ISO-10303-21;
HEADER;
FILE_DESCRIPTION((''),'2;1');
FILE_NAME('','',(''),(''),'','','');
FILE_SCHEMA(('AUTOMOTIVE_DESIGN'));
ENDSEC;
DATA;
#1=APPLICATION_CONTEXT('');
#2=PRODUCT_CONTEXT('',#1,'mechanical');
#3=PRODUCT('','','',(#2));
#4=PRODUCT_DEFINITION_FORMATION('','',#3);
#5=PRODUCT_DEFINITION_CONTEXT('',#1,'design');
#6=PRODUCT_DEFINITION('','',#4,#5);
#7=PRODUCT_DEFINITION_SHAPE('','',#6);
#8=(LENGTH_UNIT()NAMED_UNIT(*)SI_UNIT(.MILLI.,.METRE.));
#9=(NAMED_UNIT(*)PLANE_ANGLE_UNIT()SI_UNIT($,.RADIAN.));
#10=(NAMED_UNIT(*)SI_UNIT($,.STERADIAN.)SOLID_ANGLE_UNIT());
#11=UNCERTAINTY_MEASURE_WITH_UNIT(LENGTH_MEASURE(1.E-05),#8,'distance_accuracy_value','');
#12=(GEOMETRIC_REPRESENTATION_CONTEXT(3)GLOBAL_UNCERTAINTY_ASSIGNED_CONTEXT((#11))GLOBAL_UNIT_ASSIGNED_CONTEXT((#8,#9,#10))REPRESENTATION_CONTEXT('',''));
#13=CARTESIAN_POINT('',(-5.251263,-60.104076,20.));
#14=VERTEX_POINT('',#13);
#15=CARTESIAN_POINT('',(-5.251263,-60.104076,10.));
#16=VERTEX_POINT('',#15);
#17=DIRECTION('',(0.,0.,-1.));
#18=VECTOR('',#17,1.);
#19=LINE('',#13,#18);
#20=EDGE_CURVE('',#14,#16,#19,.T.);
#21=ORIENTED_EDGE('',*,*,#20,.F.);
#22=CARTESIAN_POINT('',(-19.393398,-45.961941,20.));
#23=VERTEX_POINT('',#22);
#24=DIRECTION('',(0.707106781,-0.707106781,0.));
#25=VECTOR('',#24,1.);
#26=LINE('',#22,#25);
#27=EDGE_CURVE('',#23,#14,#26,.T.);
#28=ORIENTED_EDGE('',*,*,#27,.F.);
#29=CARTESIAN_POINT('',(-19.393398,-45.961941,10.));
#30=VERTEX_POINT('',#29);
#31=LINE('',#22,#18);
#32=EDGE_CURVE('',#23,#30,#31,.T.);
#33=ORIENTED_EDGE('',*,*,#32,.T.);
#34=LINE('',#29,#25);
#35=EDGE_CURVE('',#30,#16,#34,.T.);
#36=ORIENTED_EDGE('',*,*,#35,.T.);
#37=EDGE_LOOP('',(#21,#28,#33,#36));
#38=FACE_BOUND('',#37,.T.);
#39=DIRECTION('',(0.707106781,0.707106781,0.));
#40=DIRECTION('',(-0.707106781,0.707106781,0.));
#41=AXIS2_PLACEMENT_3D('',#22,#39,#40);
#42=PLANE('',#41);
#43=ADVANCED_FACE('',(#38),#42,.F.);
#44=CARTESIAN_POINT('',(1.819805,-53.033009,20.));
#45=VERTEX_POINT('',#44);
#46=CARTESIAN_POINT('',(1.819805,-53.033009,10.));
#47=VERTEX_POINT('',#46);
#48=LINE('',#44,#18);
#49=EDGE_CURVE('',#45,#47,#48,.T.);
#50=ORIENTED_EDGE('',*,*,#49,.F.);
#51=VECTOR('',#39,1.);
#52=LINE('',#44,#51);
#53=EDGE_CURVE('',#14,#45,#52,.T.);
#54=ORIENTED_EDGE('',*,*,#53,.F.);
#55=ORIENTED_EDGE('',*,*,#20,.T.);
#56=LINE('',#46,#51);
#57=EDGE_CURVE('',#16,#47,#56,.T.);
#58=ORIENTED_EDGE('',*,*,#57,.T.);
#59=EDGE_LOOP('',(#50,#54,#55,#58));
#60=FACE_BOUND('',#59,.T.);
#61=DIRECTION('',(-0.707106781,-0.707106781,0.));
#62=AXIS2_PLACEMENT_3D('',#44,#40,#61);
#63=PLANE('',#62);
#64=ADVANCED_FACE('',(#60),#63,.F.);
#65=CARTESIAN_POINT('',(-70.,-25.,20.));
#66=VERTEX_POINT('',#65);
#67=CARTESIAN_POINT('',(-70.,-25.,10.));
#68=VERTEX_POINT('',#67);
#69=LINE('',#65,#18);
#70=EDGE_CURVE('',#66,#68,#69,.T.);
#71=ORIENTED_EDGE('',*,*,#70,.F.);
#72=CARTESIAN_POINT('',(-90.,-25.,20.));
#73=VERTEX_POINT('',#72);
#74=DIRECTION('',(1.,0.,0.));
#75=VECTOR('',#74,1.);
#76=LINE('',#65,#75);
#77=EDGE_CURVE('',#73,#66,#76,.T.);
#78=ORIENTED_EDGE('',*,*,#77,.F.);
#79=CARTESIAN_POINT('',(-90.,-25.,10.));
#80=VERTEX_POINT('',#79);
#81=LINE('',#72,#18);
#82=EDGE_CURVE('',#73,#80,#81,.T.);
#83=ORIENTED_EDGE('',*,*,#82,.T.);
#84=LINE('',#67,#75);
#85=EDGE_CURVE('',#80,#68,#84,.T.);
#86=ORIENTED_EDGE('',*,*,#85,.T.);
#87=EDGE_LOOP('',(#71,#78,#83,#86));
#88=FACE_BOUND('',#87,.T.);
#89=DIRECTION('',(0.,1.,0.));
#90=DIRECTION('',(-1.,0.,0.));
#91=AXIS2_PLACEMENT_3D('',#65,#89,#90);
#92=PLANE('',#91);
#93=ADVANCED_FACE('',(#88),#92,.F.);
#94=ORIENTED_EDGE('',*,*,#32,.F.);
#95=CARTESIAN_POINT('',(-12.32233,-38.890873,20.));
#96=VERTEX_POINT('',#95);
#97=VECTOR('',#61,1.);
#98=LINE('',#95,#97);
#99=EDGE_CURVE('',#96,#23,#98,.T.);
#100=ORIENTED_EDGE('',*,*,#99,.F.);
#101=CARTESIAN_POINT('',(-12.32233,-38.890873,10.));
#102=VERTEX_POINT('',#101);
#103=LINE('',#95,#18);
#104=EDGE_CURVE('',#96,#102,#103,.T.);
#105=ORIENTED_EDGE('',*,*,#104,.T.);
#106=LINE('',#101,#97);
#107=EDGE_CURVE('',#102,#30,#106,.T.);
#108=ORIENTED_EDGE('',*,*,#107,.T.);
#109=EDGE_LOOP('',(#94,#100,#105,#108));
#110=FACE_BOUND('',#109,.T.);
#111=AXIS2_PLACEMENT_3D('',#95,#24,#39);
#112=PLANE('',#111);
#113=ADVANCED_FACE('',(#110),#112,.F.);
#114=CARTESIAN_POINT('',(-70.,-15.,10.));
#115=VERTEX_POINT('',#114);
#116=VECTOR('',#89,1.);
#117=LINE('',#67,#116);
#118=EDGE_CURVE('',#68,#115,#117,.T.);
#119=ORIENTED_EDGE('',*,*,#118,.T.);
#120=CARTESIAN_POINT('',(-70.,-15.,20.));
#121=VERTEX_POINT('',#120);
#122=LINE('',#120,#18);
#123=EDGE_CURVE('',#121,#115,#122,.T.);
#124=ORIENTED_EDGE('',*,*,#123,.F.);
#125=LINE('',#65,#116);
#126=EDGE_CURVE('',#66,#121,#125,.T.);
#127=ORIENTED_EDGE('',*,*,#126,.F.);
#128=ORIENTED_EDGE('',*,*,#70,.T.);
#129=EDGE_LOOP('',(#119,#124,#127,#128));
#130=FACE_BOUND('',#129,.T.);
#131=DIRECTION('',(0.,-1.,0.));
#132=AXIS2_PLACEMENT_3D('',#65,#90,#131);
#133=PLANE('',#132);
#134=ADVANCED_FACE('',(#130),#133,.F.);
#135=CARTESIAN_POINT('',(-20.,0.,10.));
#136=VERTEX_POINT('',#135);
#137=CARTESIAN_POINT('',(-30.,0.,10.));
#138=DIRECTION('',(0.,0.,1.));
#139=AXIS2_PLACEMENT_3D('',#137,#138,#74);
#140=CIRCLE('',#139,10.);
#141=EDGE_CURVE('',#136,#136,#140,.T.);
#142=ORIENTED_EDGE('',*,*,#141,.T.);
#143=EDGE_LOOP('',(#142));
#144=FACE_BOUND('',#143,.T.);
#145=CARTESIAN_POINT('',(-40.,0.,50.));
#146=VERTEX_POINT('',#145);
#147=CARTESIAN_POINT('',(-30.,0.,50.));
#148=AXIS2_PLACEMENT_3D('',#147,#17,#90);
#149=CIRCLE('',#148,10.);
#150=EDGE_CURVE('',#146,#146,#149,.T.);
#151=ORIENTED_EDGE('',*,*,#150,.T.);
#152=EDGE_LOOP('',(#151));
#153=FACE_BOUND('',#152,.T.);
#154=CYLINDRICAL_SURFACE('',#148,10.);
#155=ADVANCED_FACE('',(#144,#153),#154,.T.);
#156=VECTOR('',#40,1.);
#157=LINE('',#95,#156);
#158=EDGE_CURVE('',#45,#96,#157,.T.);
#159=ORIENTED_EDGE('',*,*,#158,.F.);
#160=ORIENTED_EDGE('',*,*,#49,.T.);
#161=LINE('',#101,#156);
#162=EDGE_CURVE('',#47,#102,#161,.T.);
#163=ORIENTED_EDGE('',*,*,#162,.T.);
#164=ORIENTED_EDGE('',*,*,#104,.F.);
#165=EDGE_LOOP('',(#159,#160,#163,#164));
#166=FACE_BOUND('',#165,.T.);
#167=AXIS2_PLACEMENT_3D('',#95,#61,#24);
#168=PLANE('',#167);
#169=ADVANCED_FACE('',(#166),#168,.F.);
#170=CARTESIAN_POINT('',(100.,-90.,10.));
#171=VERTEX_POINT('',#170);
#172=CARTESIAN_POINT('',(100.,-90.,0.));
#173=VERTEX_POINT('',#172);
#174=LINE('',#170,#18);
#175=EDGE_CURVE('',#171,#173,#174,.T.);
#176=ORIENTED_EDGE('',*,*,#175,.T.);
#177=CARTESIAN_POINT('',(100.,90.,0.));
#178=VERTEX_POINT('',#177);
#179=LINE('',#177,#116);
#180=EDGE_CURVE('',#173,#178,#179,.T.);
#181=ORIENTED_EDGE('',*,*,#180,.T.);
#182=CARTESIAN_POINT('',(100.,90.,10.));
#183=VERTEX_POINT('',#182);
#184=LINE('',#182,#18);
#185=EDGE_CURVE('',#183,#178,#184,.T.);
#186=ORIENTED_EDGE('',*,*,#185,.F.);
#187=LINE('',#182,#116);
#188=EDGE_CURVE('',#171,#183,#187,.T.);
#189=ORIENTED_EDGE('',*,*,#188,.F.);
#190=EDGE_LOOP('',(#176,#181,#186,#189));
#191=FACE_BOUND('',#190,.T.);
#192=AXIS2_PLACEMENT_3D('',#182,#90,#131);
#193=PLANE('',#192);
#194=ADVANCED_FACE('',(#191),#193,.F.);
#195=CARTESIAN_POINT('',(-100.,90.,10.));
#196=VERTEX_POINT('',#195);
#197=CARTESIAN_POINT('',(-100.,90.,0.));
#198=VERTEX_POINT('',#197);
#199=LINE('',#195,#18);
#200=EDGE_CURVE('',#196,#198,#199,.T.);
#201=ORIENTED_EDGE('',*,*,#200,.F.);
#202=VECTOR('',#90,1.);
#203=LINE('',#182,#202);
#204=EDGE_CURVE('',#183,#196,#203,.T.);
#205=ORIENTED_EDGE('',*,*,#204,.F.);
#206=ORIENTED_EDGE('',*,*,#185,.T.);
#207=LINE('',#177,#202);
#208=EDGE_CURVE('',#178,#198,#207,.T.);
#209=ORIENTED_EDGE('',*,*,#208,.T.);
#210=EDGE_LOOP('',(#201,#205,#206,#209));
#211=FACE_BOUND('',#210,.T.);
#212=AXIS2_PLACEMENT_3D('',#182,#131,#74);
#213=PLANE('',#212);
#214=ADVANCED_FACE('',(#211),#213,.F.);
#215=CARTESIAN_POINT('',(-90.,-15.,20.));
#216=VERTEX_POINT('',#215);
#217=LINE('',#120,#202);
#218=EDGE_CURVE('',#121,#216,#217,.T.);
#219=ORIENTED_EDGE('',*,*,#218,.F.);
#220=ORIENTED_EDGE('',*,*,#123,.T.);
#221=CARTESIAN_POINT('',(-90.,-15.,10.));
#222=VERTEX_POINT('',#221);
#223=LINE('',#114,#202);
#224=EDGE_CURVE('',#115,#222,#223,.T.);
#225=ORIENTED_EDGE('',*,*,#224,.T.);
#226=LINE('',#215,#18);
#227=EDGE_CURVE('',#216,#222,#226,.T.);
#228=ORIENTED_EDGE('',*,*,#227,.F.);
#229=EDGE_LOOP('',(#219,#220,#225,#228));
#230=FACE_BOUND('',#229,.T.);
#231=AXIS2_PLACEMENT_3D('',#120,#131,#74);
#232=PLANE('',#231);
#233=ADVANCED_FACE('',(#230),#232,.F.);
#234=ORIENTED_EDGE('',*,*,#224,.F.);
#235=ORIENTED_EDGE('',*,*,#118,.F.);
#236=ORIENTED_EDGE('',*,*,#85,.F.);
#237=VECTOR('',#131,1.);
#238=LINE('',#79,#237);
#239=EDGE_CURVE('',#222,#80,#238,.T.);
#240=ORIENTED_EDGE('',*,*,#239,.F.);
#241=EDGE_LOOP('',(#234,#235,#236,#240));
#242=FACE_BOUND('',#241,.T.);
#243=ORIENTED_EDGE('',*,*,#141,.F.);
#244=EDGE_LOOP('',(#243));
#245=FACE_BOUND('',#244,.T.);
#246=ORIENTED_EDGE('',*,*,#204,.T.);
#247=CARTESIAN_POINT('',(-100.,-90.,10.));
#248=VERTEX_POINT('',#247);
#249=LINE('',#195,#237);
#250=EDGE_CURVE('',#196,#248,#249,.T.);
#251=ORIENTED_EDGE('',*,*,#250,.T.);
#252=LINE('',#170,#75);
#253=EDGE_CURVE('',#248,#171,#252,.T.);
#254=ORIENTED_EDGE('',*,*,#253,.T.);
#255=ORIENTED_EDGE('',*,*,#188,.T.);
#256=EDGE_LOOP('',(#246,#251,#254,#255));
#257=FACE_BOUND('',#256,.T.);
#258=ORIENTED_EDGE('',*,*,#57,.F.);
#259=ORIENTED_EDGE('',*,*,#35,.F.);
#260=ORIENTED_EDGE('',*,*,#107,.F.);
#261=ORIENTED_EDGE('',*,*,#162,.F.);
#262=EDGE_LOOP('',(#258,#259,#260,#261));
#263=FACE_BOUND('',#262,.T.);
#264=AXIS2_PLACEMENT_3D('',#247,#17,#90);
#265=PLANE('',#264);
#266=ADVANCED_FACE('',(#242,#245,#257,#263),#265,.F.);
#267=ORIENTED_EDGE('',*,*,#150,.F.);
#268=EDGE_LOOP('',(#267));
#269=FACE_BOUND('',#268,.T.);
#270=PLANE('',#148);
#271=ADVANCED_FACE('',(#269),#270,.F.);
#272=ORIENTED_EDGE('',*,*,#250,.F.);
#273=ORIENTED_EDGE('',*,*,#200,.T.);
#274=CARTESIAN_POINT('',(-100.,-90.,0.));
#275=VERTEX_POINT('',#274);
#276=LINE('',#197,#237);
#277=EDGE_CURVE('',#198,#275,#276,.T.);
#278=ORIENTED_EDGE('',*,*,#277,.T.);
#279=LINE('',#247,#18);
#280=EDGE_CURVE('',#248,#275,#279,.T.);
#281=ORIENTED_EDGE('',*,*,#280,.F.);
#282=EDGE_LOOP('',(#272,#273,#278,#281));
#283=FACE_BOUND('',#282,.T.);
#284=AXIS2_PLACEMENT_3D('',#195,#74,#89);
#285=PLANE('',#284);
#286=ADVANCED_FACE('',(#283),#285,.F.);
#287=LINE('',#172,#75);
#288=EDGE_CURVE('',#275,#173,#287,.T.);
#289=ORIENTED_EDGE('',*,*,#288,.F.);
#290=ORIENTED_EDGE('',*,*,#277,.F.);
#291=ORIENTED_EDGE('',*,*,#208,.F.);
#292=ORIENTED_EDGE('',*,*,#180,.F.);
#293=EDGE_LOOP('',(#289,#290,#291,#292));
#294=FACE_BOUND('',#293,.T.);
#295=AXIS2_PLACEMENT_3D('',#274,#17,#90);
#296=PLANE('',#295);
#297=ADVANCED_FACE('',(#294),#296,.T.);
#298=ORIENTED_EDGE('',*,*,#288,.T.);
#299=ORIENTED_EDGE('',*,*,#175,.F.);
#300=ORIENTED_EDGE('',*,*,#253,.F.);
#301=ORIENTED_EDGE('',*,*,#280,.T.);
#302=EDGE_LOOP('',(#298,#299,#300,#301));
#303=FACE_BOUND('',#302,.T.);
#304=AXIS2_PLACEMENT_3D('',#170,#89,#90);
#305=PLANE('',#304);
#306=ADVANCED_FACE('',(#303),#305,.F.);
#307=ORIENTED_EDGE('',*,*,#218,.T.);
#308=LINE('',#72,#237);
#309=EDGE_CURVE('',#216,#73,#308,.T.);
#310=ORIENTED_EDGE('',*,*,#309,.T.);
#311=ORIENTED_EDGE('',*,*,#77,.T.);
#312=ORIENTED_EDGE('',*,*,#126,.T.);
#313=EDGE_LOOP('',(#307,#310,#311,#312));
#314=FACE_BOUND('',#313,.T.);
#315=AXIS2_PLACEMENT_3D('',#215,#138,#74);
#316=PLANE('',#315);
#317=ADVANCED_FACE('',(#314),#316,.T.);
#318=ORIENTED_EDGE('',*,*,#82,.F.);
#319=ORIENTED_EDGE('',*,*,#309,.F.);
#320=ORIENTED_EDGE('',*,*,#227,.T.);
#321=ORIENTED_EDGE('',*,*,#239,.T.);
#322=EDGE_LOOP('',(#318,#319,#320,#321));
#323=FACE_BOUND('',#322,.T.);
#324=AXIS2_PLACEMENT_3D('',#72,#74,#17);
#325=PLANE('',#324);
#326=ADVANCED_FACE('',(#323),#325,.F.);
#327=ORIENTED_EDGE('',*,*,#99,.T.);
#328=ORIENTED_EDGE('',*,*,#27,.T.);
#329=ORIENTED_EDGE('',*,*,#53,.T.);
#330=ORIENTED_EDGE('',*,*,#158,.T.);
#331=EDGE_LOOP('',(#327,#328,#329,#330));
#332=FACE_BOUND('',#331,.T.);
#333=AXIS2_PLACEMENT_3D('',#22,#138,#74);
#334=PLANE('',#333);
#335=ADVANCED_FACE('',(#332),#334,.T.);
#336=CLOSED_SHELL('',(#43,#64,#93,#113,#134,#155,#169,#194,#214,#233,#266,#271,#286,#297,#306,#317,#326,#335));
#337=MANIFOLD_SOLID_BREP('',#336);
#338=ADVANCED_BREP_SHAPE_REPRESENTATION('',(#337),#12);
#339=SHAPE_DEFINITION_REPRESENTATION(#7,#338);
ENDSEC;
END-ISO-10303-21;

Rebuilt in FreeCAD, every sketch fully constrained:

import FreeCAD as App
import Part
import Sketcher

V = App.Vector
Q = App.Units.Quantity

doc = App.newDocument("Part")
body = doc.addObject("PartDesign::Body", "Body")

sketch1 = doc.addObject("Sketcher::SketchObject", "Sketch")
body.addObject(sketch1)
sketch1.AttachmentSupport = (doc.XY_Plane, [""])
sketch1.MapMode = "FlatFace"
sketch1.addGeometry([
    Part.LineSegment(V(-100, 90, 0), V(-100, -90, 0)),
    Part.LineSegment(V(-100, -90, 0), V(100, -90, 0)),
    Part.LineSegment(V(100, -90, 0), V(100, 90, 0)),
    Part.LineSegment(V(100, 90, 0), V(-100, 90, 0)),
    Part.Circle(V(-30, 0, 0), V(0, 0, 1), 10),
], False)
sketch1.addConstraint([
    Sketcher.Constraint("Coincident", 0, 2, 1, 1),
    Sketcher.Constraint("Coincident", 1, 2, 2, 1),
    Sketcher.Constraint("Coincident", 2, 2, 3, 1),
    Sketcher.Constraint("Coincident", 3, 2, 0, 1),
    Sketcher.Constraint("Vertical", 0),
    Sketcher.Constraint("Horizontal", 1),
    Sketcher.Constraint("Vertical", 2),
    Sketcher.Constraint("Horizontal", 3),
    Sketcher.Constraint("Symmetric", 0, 2, 2, 2, -1, 1),
    Sketcher.Constraint("PointOnObject", 4, 3, -1),
    Sketcher.Constraint("Diameter", 4, Q("20 mm")),
    Sketcher.Constraint("DistanceX", 1, 1, 1, 2, Q("200 mm")),
    Sketcher.Constraint("DistanceY", 0, 2, 0, 1, Q("180 mm")),
    Sketcher.Constraint("DistanceX", 4, 3, -1, 1, Q("30 mm")),
])
pad1 = doc.addObject("PartDesign::Pad", "Pad")
body.addObject(pad1)
pad1.Profile = sketch1
pad1.Length = 10

sketch2 = doc.addObject("Sketcher::SketchObject", "Sketch001")
body.addObject(sketch2)
sketch2.AttachmentSupport = (doc.XY_Plane, [""])
sketch2.MapMode = "FlatFace"
sketch2.addGeometry(Part.Circle(V(-30, 0, 0), V(0, 0, 1), 10), False)
sketch2.addConstraint([
    Sketcher.Constraint("PointOnObject", 0, 3, -1),
    Sketcher.Constraint("Diameter", 0, Q("20 mm")),
    Sketcher.Constraint("DistanceX", 0, 3, -1, 1, Q("30 mm")),
])
pad2 = doc.addObject("PartDesign::Pad", "Pad001")
body.addObject(pad2)
pad2.Profile = sketch2
pad2.Length = 50

sketch3 = doc.addObject("Sketcher::SketchObject", "Sketch002")
body.addObject(sketch3)
sketch3.AttachmentSupport = (doc.XY_Plane, [""])
sketch3.MapMode = "FlatFace"
sketch3.AttachmentOffset = App.Placement(V(0, 0, 10), App.Rotation())
sketch3.addGeometry([
    Part.LineSegment(V(-90, -15, 0), V(-90, -25, 0)),
    Part.LineSegment(V(-90, -25, 0), V(-70, -25, 0)),
    Part.LineSegment(V(-70, -25, 0), V(-70, -15, 0)),
    Part.LineSegment(V(-70, -15, 0), V(-90, -15, 0)),
    Part.LineSegment(V(1.819805, -53.033009, 0), V(-12.32233, -38.890873, 0)),
    Part.LineSegment(V(-12.32233, -38.890873, 0), V(-19.393398, -45.961941, 0)),
    Part.LineSegment(V(-19.393398, -45.961941, 0), V(-5.251263, -60.104076, 0)),
    Part.LineSegment(V(-5.251263, -60.104076, 0), V(1.819805, -53.033009, 0)),
], False)
sketch3.addConstraint([
    Sketcher.Constraint("Coincident", 0, 2, 1, 1),
    Sketcher.Constraint("Coincident", 1, 2, 2, 1),
    Sketcher.Constraint("Coincident", 2, 2, 3, 1),
    Sketcher.Constraint("Coincident", 3, 2, 0, 1),
    Sketcher.Constraint("Coincident", 4, 2, 5, 1),
    Sketcher.Constraint("Coincident", 5, 2, 6, 1),
    Sketcher.Constraint("Coincident", 6, 2, 7, 1),
    Sketcher.Constraint("Coincident", 7, 2, 4, 1),
    Sketcher.Constraint("Vertical", 0),
    Sketcher.Constraint("Horizontal", 1),
    Sketcher.Constraint("Vertical", 2),
    Sketcher.Constraint("Horizontal", 3),
    Sketcher.Constraint("Perpendicular", 4, 5),
    Sketcher.Constraint("Perpendicular", 5, 6),
    Sketcher.Constraint("Perpendicular", 6, 7),
    Sketcher.Constraint("DistanceX", 1, 1, 1, 2, Q("20 mm")),
    Sketcher.Constraint("DistanceY", 0, 2, 0, 1, Q("10 mm")),
    Sketcher.Constraint("Angle", 4, Q("135 deg")),
    Sketcher.Constraint("Distance", 4, Q("20 mm")),
    Sketcher.Constraint("Distance", 5, Q("10 mm")),
    Sketcher.Constraint("DistanceX", 0, 2, -1, 1, Q("90 mm")),
    Sketcher.Constraint("DistanceY", 0, 2, -1, 1, Q("25 mm")),
    Sketcher.Constraint("DistanceX", 5, 2, -1, 1, Q("19.393398 mm")),
    Sketcher.Constraint("DistanceY", 5, 2, -1, 1, Q("45.961941 mm")),
])
pad3 = doc.addObject("PartDesign::Pad", "Pad002")
body.addObject(pad3)
pad3.Profile = sketch3
pad3.Length = 10

doc.recompute()
